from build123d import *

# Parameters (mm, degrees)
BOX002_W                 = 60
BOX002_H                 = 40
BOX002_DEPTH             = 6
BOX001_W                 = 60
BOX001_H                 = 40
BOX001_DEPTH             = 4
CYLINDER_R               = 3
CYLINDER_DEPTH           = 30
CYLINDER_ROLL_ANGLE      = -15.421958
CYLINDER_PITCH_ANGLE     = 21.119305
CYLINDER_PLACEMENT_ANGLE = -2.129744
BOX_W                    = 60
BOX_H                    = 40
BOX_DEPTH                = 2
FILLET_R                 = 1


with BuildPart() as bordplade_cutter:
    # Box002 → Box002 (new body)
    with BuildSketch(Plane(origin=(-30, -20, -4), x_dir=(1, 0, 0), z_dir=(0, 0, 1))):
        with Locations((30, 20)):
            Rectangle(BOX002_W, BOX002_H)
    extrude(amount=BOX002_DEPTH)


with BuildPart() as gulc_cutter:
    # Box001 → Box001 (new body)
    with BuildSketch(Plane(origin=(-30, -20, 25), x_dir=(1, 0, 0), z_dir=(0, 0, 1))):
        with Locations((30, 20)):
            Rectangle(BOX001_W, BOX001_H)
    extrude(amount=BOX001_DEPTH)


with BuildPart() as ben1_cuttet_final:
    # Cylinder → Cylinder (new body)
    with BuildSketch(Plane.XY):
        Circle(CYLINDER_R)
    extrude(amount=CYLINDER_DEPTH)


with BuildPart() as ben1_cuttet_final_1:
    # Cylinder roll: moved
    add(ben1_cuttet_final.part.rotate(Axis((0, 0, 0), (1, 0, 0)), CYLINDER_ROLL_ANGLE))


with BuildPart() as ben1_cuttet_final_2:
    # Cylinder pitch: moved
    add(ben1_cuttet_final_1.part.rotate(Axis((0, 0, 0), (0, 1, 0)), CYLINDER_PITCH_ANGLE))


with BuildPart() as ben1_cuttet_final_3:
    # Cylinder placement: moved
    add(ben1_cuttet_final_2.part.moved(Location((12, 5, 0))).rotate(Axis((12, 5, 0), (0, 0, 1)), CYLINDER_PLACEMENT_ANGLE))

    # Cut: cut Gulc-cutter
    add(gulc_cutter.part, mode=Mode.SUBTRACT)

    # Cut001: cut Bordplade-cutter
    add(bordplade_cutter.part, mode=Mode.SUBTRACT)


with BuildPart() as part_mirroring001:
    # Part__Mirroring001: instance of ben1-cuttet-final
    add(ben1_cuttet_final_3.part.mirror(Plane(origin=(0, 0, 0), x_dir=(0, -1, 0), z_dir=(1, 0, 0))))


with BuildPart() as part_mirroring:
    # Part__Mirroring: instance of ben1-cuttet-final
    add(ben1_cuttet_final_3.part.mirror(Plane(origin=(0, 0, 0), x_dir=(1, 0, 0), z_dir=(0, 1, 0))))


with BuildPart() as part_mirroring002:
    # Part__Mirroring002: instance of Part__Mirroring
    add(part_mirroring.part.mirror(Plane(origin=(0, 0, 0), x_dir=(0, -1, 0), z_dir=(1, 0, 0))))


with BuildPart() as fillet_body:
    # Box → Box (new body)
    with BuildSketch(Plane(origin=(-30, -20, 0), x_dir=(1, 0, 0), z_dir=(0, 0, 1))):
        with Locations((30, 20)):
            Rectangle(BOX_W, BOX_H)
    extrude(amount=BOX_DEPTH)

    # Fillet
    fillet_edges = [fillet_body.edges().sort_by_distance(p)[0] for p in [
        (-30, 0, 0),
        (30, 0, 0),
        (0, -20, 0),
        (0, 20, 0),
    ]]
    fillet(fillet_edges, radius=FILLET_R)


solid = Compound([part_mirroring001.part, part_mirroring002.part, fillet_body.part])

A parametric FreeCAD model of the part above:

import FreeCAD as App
import Part
import Sketcher


def edges_at(feature, points):
    """Names of the edges that pass closest to the given points."""
    edges = feature.Shape.Edges
    near = lambda p: min(range(len(edges)), key=lambda i: edges[i].distToShape(Part.Vertex(*p))[0])
    return sorted({f"Edge{near(p) + 1}" for p in points})


def add_polygon(sketch, points):
    """Adds a closed chain of lines whose ends are joined by coincident constraints."""
    first, n = sketch.GeometryCount, len(points)
    for a, b in zip(points, points[1:] + points[:1]):
        sketch.addGeometry(Part.LineSegment(App.Vector(*a, 0), App.Vector(*b, 0)), False)
    for i in range(n):
        sketch.addConstraint(Sketcher.Constraint("Coincident", first + i, 2, first + (i + 1) % n, 1))

doc = App.newDocument("Part")
body = doc.addObject("PartDesign::Body", "Body")

sketch1 = body.newObject("Sketcher::SketchObject", "Sketch")
sketch1.AttachmentSupport = (doc.getObject("XY_Plane"), [""])
sketch1.MapMode = "FlatFace"
sketch1.AttachmentOffset = App.Placement(App.Vector(0, 0, -4), App.Rotation())
add_polygon(sketch1, [(-30, 20), (-30, -20), (30, -20), (30, 20)])
sketch1.addConstraint([
    Sketcher.Constraint("Vertical", 0),
    Sketcher.Constraint("Horizontal", 1),
    Sketcher.Constraint("Vertical", 2),
    Sketcher.Constraint("Horizontal", 3),
    Sketcher.Constraint("Symmetric", 0, 2, 2, 2, -1, 1),
    Sketcher.Constraint("DistanceX", 1, 1, 1, 2, 60.0),
    Sketcher.Constraint("DistanceY", 0, 2, 0, 1, 40.0),
])
pad1 = body.newObject("PartDesign::Pad", "Pad")
pad1.Profile = sketch1
pad1.Length = 6
body2 = doc.addObject("PartDesign::Body", "Body001")

sketch2 = body2.newObject("Sketcher::SketchObject", "Sketch001")
sketch2.AttachmentSupport = (doc.getObject("XY_Plane001"), [""])
sketch2.MapMode = "FlatFace"
sketch2.AttachmentOffset = App.Placement(App.Vector(0, 0, 25), App.Rotation())
add_polygon(sketch2, [(-30, 20), (-30, -20), (30, -20), (30, 20)])
sketch2.addConstraint([
    Sketcher.Constraint("Vertical", 0),
    Sketcher.Constraint("Horizontal", 1),
    Sketcher.Constraint("Vertical", 2),
    Sketcher.Constraint("Horizontal", 3),
    Sketcher.Constraint("Symmetric", 0, 2, 2, 2, -1, 1),
    Sketcher.Constraint("DistanceX", 1, 1, 1, 2, 60.0),
    Sketcher.Constraint("DistanceY", 0, 2, 0, 1, 40.0),
])
pad2 = body2.newObject("PartDesign::Pad", "Pad001")
pad2.Profile = sketch2
pad2.Length = 4
body3 = doc.addObject("PartDesign::Body", "Body002")

sketch3 = body3.newObject("Sketcher::SketchObject", "Sketch002")
sketch3.AttachmentSupport = (doc.getObject("XY_Plane002"), [""])
sketch3.MapMode = "FlatFace"
sketch3.addGeometry(Part.Circle(App.Vector(0, 0, 0), App.Vector(0, 0, 1), 3), False)
sketch3.addConstraint([
    Sketcher.Constraint("Coincident", 0, 3, -1, 1),
    Sketcher.Constraint("Diameter", 0, 6.0),
])
pad3 = body3.newObject("PartDesign::Pad", "Pad002")
pad3.Profile = sketch3
pad3.Length = 30
body4 = doc.addObject("PartDesign::Body", "Body003")
doc.recompute()

body3.Placement = App.Placement(App.Vector(0, 0, 0), App.Rotation(App.Vector(1, 0, 0), 344.578042))
boolean = body4.newObject("PartDesign::Boolean", "Boolean")
boolean.Type = "Fuse"
boolean.addObjects([body3])
body5 = doc.addObject("PartDesign::Body", "Body004")
doc.recompute()

body4.Placement = App.Placement(App.Vector(0, 0, 0), App.Rotation(App.Vector(0, 1, 0), 21.119305))
boolean2 = body5.newObject("PartDesign::Boolean", "Boolean001")
boolean2.Type = "Fuse"
boolean2.addObjects([body4])
body6 = doc.addObject("PartDesign::Body", "Body005")
doc.recompute()

body5.Placement = App.Placement(App.Vector(12, 5, 0), App.Rotation(App.Vector(0, 0, 1), 357.870256))
boolean3 = body6.newObject("PartDesign::Boolean", "Boolean002")
boolean3.Type = "Fuse"
boolean3.addObjects([body5])
doc.recompute()

boolean4 = body6.newObject("PartDesign::Boolean", "Boolean003")
boolean4.Type = "Cut"
boolean4.addObjects([body2])
doc.recompute()

boolean5 = body6.newObject("PartDesign::Boolean", "Boolean004")
boolean5.Type = "Cut"
boolean5.addObjects([body])
body7 = doc.addObject("PartDesign::Body", "Body006")
doc.recompute()

mirroring = doc.addObject("Part::Mirroring", "Mirroring")
mirroring.Source = body6
mirroring.Base = App.Vector(0, 0, 0)
mirroring.Normal = App.Vector(1, 0, 0)
body7.BaseFeature = mirroring
doc.recompute()
body8 = doc.addObject("PartDesign::Body", "Body007")
doc.recompute()

mirroring2 = doc.addObject("Part::Mirroring", "Mirroring001")
mirroring2.Source = body6
mirroring2.Base = App.Vector(0, 0, 0)
mirroring2.Normal = App.Vector(0, 1, 0)
body8.BaseFeature = mirroring2
doc.recompute()
body9 = doc.addObject("PartDesign::Body", "Body008")
doc.recompute()

mirroring3 = doc.addObject("Part::Mirroring", "Mirroring002")
mirroring3.Source = body8
mirroring3.Base = App.Vector(0, 0, 0)
mirroring3.Normal = App.Vector(1, 0, 0)
body9.BaseFeature = mirroring3
doc.recompute()
body10 = doc.addObject("PartDesign::Body", "Body009")

sketch4 = body10.newObject("Sketcher::SketchObject", "Sketch003")
sketch4.AttachmentSupport = (doc.getObject("XY_Plane009"), [""])
sketch4.MapMode = "FlatFace"
add_polygon(sketch4, [(-30, 20), (-30, -20), (30, -20), (30, 20)])
sketch4.addConstraint([
    Sketcher.Constraint("Vertical", 0),
    Sketcher.Constraint("Horizontal", 1),
    Sketcher.Constraint("Vertical", 2),
    Sketcher.Constraint("Horizontal", 3),
    Sketcher.Constraint("Symmetric", 0, 2, 2, 2, -1, 1),
    Sketcher.Constraint("DistanceX", 1, 1, 1, 2, 60.0),
    Sketcher.Constraint("DistanceY", 0, 2, 0, 1, 40.0),
])
pad4 = body10.newObject("PartDesign::Pad", "Pad003")
pad4.Profile = sketch4
pad4.Length = 2
doc.recompute()

fillet = body10.newObject("PartDesign::Fillet", "Fillet")
fillet.Base = (pad4, edges_at(pad4, [
    (-30, 0, 0),
    (30, 0, 0),
    (0, -20, 0),
    (0, 20, 0),
]))
fillet.Radius = 1
body6.Visibility = False
body8.Visibility = False
mirroring.Visibility = False
mirroring2.Visibility = False
mirroring3.Visibility = False

doc.recompute()
